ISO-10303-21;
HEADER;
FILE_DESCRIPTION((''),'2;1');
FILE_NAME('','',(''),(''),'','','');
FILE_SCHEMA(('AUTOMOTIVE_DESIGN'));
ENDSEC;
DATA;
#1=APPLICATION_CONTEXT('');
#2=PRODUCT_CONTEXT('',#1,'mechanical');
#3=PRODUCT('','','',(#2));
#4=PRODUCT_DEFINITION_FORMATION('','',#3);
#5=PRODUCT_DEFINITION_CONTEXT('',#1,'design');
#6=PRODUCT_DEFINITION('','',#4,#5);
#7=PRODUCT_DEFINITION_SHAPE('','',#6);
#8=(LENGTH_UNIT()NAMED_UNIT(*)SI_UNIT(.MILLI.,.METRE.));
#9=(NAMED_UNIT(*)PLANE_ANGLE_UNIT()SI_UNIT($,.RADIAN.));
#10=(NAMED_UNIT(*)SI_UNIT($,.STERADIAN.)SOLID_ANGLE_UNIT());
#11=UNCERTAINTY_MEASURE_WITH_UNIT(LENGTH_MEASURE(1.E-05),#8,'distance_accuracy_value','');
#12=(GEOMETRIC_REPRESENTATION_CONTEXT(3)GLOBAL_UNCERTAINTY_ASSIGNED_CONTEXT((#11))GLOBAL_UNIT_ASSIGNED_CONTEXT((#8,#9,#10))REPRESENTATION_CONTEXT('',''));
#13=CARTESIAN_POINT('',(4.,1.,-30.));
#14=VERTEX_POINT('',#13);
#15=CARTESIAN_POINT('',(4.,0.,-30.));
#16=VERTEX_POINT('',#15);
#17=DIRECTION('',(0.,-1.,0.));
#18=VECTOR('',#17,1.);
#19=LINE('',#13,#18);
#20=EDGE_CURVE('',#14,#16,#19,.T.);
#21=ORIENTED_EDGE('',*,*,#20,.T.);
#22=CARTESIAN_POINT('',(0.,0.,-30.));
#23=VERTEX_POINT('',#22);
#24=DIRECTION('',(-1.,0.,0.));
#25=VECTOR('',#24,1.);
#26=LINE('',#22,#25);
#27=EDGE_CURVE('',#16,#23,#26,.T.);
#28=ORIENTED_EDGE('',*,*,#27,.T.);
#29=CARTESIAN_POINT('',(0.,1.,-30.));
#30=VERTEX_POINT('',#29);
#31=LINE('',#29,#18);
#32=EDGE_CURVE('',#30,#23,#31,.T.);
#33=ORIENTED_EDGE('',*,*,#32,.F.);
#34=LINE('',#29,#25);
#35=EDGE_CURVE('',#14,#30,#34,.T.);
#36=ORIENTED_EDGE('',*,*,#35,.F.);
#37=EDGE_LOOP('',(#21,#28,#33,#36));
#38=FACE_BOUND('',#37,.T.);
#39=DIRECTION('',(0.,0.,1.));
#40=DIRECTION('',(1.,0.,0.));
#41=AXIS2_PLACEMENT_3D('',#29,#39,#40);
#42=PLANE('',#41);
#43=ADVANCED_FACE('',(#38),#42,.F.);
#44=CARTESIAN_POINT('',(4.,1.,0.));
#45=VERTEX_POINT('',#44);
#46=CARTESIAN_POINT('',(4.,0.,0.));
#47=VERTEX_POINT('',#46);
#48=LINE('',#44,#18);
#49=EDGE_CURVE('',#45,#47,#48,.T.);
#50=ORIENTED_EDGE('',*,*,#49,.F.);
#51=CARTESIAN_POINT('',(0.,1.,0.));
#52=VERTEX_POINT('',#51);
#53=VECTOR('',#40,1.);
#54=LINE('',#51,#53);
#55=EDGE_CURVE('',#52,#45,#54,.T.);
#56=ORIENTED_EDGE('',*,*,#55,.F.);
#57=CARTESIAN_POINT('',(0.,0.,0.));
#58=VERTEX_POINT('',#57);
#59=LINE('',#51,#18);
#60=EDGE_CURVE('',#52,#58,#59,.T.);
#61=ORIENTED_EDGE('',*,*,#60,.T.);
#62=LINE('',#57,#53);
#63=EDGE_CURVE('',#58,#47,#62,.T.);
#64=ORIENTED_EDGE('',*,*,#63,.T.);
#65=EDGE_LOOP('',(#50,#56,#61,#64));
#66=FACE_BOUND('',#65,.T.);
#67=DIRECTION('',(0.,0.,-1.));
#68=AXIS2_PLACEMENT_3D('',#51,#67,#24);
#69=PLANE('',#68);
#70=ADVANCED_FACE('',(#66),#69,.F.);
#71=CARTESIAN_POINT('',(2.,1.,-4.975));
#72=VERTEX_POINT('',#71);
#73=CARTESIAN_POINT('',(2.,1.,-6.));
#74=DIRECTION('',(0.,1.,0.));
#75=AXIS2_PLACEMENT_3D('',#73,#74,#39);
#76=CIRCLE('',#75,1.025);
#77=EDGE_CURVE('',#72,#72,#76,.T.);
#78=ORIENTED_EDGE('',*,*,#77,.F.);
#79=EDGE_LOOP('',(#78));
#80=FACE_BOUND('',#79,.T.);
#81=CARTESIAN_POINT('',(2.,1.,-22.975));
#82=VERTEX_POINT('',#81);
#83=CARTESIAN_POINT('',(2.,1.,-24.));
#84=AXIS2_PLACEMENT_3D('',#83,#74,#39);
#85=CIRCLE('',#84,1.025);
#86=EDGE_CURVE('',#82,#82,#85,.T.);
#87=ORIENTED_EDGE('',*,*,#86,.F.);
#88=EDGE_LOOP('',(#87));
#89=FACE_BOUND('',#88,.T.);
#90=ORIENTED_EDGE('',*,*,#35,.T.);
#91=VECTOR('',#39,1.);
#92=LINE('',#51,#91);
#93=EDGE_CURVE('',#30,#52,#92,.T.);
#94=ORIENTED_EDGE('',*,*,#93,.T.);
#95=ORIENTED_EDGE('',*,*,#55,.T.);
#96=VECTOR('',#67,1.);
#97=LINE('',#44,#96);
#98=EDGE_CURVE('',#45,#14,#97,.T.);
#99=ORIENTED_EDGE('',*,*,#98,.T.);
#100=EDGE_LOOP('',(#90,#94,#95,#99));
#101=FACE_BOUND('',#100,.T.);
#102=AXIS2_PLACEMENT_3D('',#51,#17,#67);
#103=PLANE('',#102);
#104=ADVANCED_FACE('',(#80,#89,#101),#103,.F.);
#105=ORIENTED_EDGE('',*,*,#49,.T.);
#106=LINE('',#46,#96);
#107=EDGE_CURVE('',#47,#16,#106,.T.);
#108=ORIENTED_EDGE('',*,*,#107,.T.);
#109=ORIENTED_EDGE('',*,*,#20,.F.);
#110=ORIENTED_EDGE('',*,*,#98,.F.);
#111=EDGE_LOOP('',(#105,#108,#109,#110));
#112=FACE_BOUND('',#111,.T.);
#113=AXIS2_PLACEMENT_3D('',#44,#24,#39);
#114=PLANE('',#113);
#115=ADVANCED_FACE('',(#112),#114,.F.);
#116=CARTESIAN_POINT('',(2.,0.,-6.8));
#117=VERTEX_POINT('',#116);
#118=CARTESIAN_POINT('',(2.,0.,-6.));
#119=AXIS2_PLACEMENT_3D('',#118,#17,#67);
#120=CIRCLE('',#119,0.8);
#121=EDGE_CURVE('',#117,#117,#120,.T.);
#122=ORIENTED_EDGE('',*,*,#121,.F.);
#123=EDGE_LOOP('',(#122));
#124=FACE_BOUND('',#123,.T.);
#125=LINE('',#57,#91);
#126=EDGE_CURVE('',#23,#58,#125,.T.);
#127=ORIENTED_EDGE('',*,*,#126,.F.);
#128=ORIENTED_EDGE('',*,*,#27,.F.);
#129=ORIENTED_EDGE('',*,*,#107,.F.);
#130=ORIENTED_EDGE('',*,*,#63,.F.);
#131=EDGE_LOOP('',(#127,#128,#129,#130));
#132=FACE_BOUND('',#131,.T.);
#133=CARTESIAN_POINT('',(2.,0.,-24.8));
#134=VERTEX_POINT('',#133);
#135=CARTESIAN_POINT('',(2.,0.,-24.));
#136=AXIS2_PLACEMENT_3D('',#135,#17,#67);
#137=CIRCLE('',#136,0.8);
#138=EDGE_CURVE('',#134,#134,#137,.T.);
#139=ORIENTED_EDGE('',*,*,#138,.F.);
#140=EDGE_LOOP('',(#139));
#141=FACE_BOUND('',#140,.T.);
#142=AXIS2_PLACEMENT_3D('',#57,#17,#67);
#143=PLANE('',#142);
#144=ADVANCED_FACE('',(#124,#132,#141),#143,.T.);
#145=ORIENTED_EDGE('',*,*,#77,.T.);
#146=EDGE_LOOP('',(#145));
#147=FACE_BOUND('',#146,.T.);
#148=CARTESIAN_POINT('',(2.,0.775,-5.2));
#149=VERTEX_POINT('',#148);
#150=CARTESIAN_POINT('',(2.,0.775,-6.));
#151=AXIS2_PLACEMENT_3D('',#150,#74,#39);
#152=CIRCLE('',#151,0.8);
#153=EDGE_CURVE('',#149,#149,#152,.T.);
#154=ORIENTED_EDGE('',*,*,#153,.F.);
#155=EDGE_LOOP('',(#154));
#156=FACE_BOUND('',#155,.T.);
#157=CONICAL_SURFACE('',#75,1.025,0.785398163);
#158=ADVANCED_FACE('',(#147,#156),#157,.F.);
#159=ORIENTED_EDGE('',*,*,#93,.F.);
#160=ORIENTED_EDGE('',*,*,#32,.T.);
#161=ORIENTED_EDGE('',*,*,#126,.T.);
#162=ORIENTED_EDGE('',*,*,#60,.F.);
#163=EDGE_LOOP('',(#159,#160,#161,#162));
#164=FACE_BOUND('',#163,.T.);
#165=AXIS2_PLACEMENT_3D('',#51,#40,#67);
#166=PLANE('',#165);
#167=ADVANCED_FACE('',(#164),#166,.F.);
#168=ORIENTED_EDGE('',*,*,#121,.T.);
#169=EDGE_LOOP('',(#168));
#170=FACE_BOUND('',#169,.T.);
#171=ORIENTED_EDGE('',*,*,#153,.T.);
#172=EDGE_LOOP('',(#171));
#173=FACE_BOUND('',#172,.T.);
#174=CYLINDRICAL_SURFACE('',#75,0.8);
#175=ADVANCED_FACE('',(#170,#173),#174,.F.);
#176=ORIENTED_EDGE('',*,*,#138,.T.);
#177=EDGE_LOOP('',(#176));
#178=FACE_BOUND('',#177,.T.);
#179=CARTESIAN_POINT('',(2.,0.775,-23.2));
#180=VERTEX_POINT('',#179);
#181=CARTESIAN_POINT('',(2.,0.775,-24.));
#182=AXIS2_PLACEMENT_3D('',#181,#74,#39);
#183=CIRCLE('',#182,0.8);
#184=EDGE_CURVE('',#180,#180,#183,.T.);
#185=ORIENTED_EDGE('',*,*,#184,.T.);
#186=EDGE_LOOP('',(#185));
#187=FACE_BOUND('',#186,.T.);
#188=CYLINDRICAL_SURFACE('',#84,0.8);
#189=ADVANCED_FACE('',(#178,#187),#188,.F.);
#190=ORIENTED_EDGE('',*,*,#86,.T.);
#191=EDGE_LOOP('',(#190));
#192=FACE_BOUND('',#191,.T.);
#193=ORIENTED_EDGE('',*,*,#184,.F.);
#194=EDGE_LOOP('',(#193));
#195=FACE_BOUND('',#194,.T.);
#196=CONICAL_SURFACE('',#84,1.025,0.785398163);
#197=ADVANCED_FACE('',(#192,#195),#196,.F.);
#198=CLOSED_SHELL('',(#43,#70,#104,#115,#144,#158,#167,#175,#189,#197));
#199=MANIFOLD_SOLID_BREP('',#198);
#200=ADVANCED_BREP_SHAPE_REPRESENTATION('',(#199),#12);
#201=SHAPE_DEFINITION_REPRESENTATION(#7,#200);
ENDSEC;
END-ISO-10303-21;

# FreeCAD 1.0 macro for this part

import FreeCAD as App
import Part
import Sketcher
Q = App.Units.Quantity


def add_polygon(sketch, points):
    """Adds a closed chain of lines whose ends are joined by coincident constraints."""
    first, n = sketch.GeometryCount, len(points)
    for a, b in zip(points, points[1:] + points[:1]):
        sketch.addGeometry(Part.LineSegment(App.Vector(*a, 0), App.Vector(*b, 0)), False)
    for i in range(n):
        sketch.addConstraint(Sketcher.Constraint("Coincident", first + i, 2, first + (i + 1) % n, 1))

doc = App.newDocument("Part")
body = doc.addObject("PartDesign::Body", "Body")

sketch1 = doc.addObject("Sketcher::SketchObject", "Sketch")
body.addObject(sketch1)
sketch1.AttachmentSupport = (doc.XZ_Plane, [""])
sketch1.MapMode = "FlatFace"
add_polygon(sketch1, [(0, -30), (0, 0), (4, 0), (4, -30)])
sketch1.addConstraint(Sketcher.Constraint("Vertical", 0))
sketch1.addConstraint(Sketcher.Constraint("Horizontal", 1))
sketch1.addConstraint(Sketcher.Constraint("Vertical", 2))
sketch1.addConstraint(Sketcher.Constraint("Horizontal", 3))
sketch1.addConstraint(Sketcher.Constraint("Coincident", 0, 2, -1, 1))
sketch1.addConstraint(Sketcher.Constraint("DistanceX", 1, 1, 1, 2, Q("4 mm")))
sketch1.addConstraint(Sketcher.Constraint("DistanceY", 0, 1, 0, 2, Q("30 mm")))
pad1 = doc.addObject("PartDesign::Pad", "Pad")
body.addObject(pad1)
pad1.Profile = sketch1
pad1.Length = 1
pad1.Reversed = True

sketch2 = doc.addObject("Sketcher::SketchObject", "Sketch001")
body.addObject(sketch2)
sketch2.AttachmentSupport = (doc.XZ_Plane, [""])
sketch2.MapMode = "FlatFace"
sketch2.AttachmentOffset = App.Placement(App.Vector(0, 0, -1), App.Rotation())
sketch2.addGeometry(Part.Circle(App.Vector(2, -24, 0), App.Vector(0, 0, 1), 0.8), False)
sketch2.addGeometry(Part.Circle(App.Vector(2, -6, 0), App.Vector(0, 0, 1), 0.8), False)
sketch2.addConstraint(Sketcher.Constraint("Equal", 0, 1))
sketch2.addConstraint(Sketcher.Constraint("Vertical", 0, 3, 1, 3))
sketch2.addConstraint(Sketcher.Constraint("Diameter", 0, Q("1.6 mm")))
sketch2.addConstraint(Sketcher.Constraint("DistanceX", -1, 1, 0, 3, Q("2 mm")))
sketch2.addConstraint(Sketcher.Constraint("DistanceY", 0, 3, -1, 1, Q("24 mm")))
sketch2.addConstraint(Sketcher.Constraint("DistanceY", 1, 3, -1, 1, Q("6 mm")))
doc.recompute()
hole = doc.addObject("PartDesign::Hole", "Hole")
body.addObject(hole)
hole.Profile = sketch2
hole.ThreadType = "None"
hole.Diameter = 1.6
hole.DepthType = "Dimension"
hole.Depth = 11.2
hole.DrillPoint = "Angled"
hole.DrillPointAngle = 118
hole.HoleCutType = "Countersink"
hole.HoleCutDiameter = 2.05
hole.HoleCutCountersinkAngle = 90
hole.Reversed = True

doc.recompute()
